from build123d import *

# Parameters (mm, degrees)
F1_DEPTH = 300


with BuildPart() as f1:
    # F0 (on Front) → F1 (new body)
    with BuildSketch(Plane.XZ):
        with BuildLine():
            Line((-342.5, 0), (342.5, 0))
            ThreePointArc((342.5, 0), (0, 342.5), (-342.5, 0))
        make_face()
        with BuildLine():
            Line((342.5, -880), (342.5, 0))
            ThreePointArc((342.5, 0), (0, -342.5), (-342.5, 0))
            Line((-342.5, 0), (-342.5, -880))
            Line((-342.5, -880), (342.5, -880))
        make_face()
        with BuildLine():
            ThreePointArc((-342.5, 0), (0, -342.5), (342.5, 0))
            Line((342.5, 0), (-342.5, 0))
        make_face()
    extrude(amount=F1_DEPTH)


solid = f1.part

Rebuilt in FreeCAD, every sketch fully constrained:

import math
import FreeCAD as App
import Part
import Sketcher

doc = App.newDocument("Part")
body = doc.addObject("PartDesign::Body", "Body")

# Sketch on XZ plane
sketch1 = body.newObject("Sketcher::SketchObject", "Sketch")
sketch1.AttachmentSupport = (doc.getObject("XZ_Plane"), [""])
sketch1.MapMode = "FlatFace"
sketch1.addGeometry([
    Part.ArcOfCircle(Part.Circle(App.Vector(0, 0, 0), App.Vector(0, 0, 1), 342), math.radians(0), math.radians(180)),
    Part.LineSegment(App.Vector(-342, 0, 0), App.Vector(-342, -880, 0)),
    Part.LineSegment(App.Vector(-342, -880, 0), App.Vector(342, -880, 0)),
    Part.LineSegment(App.Vector(342, -880, 0), App.Vector(342, 0, 0)),
], False)
sketch1.addConstraint([
    Sketcher.Constraint("Tangent", 0, 2, 1, 1),
    Sketcher.Constraint("Coincident", 1, 2, 2, 1),
    Sketcher.Constraint("Coincident", 2, 2, 3, 1),
    Sketcher.Constraint("Tangent", 3, 2, 0, 1),
    Sketcher.Constraint("Vertical", 1),
    Sketcher.Constraint("Horizontal", 2),
    Sketcher.Constraint("Vertical", 3),
    Sketcher.Constraint("Coincident", 0, 3, -1, 1),
    Sketcher.Constraint("Radius", 0, 342.5),
    Sketcher.Constraint("DistanceY", 1, 2, 1, 1, 880.0),
])
pad1 = body.newObject("PartDesign::Pad", "Pad")
pad1.Profile = sketch1
pad1.Length = 300

doc.recompute()
